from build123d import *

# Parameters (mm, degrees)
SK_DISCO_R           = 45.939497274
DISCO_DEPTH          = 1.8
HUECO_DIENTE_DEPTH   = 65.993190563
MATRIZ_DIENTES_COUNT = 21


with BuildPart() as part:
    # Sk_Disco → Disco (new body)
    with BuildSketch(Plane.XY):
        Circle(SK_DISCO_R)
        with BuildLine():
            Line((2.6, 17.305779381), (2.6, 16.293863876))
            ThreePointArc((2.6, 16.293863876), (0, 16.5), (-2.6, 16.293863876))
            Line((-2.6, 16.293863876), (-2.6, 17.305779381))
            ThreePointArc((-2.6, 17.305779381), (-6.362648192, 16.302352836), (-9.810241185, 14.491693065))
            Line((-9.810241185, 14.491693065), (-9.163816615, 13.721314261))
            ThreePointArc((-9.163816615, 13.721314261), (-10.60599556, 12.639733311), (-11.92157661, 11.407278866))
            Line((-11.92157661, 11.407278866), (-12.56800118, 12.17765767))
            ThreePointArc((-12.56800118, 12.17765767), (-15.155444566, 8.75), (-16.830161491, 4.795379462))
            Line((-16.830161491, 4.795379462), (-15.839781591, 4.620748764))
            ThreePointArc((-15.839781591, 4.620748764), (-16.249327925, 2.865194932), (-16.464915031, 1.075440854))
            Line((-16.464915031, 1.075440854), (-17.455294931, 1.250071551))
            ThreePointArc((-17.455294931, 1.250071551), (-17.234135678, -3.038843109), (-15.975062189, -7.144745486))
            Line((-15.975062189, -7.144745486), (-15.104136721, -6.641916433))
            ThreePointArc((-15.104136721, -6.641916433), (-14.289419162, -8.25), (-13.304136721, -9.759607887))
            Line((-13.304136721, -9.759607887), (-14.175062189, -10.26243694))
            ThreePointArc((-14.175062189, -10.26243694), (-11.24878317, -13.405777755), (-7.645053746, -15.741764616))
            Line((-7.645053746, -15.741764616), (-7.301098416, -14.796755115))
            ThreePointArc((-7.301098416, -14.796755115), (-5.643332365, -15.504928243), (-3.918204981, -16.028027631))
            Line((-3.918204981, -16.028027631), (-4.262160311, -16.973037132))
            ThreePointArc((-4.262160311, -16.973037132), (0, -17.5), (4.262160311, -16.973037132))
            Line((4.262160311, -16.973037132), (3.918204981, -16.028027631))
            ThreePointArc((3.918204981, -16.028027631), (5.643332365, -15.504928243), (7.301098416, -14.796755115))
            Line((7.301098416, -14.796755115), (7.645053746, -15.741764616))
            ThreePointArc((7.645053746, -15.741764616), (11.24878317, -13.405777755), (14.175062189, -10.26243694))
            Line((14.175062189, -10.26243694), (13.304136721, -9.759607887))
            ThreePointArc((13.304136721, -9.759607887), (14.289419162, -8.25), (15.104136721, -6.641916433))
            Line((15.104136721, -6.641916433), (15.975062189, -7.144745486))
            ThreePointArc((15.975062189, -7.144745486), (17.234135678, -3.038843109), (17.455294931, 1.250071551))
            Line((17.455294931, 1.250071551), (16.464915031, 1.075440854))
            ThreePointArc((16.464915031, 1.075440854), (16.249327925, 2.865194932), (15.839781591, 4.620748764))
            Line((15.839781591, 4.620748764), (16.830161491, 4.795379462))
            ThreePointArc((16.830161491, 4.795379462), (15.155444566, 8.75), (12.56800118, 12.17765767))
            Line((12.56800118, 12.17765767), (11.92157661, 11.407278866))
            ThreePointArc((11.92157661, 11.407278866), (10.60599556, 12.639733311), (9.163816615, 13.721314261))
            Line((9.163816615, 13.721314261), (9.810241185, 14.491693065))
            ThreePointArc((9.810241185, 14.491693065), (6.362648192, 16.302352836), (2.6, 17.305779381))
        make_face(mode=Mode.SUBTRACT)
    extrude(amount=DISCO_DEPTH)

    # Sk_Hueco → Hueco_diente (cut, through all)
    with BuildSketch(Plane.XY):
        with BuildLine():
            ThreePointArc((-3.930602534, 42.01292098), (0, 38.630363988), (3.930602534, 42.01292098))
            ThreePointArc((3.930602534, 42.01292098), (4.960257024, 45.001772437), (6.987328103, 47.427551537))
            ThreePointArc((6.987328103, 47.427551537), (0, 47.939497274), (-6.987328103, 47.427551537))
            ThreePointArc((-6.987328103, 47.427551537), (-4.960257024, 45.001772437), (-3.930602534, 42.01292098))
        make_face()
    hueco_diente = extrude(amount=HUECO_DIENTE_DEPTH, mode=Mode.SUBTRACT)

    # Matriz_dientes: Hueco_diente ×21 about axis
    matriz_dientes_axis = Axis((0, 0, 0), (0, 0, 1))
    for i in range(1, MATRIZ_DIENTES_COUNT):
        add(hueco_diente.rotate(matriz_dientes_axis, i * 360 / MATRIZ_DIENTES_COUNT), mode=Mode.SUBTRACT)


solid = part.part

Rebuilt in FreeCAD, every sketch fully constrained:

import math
import FreeCAD as App
import Part
import Sketcher
from FreeCAD import Vector
Q = App.Units.Quantity

doc = App.newDocument("Part")
body = doc.addObject("PartDesign::Body", "Body")

# Sketch on XY plane
sketch1 = doc.addObject("Sketcher::SketchObject", "Sketch")
body.addObject(sketch1)
sketch1.AttachmentSupport = (doc.XY_Plane, [""])
sketch1.MapMode = "FlatFace"
sketch1.addGeometry([
    Part.Circle(Vector(0, 0, 0), Vector(0, 0, 1), 45.939497),  # 0
    Part.LineSegment(Vector(2.6, 16.293864, 0), Vector(2.6, 17.305779, 0)),  # 1
    Part.ArcOfCircle(Part.Circle(Vector(0, 0, 0), Vector(0, 0, 1), 17.5), math.radians(55.903721), math.radians(81.455852)),  # 2
    Part.LineSegment(Vector(9.810241, 14.491693, 0), Vector(9.163817, 13.721314, 0)),  # 3
    Part.ArcOfCircle(Part.Circle(Vector(0, 0, 0), Vector(0, 0, 1), 16.5), math.radians(43.737087), math.radians(56.262913)),  # 4
    Part.LineSegment(Vector(11.921577, 11.407279, 0), Vector(12.568001, 12.177658, 0)),  # 5
    Part.ArcOfCircle(Part.Circle(Vector(0, 0, 0), Vector(0, 0, 1), 17.5), math.radians(15.903721), math.radians(44.096279)),  # 6
    Part.LineSegment(Vector(16.830161, 4.795379, 0), Vector(15.839782, 4.620749, 0)),  # 7
    Part.ArcOfCircle(Part.Circle(Vector(0, 0, 0), Vector(0, 0, 1), 16.5), math.radians(3.737087), math.radians(16.262913)),  # 8
    Part.LineSegment(Vector(16.464915, 1.075441, 0), Vector(17.455295, 1.250072, 0)),  # 9
    Part.ArcOfCircle(Part.Circle(Vector(0, 0, 0), Vector(0, 0, 1), 17.5), math.radians(-24.096279), math.radians(4.096279)),  # 10
    Part.LineSegment(Vector(15.975062, -7.144745, 0), Vector(15.104137, -6.641916, 0)),  # 11
    Part.ArcOfCircle(Part.Circle(Vector(0, 0, 0), Vector(0, 0, 1), 16.5), math.radians(-36.262913), math.radians(-23.737087)),  # 12
    Part.LineSegment(Vector(13.304137, -9.759608, 0), Vector(14.175062, -10.262437, 0)),  # 13
    Part.ArcOfCircle(Part.Circle(Vector(0, 0, 0), Vector(0, 0, 1), 17.5), math.radians(-64.096279), math.radians(-35.903721)),  # 14
    Part.LineSegment(Vector(7.645054, -15.741765, 0), Vector(7.301098, -14.796755, 0)),  # 15
    Part.ArcOfCircle(Part.Circle(Vector(0, 0, 0), Vector(0, 0, 1), 16.5), math.radians(-76.262913), math.radians(-63.737087)),  # 16
    Part.LineSegment(Vector(3.918205, -16.028028, 0), Vector(4.26216, -16.973037, 0)),  # 17
    Part.ArcOfCircle(Part.Circle(Vector(0, 0, 0), Vector(0, 0, 1), 17.5), math.radians(-104.096279), math.radians(-75.903721)),  # 18
    Part.LineSegment(Vector(-4.26216, -16.973037, 0), Vector(-3.918205, -16.028028, 0)),  # 19
    Part.ArcOfCircle(Part.Circle(Vector(0, 0, 0), Vector(0, 0, 1), 16.5), math.radians(-116.262913), math.radians(-103.737087)),  # 20
    Part.LineSegment(Vector(-7.301098, -14.796755, 0), Vector(-7.645054, -15.741765, 0)),  # 21
    Part.ArcOfCircle(Part.Circle(Vector(0, 0, 0), Vector(0, 0, 1), 17.5), math.radians(-144.096279), math.radians(-115.903721)),  # 22
    Part.LineSegment(Vector(-14.175062, -10.262437, 0), Vector(-13.304137, -9.759608, 0)),  # 23
    Part.ArcOfCircle(Part.Circle(Vector(0, 0, 0), Vector(0, 0, 1), 16.5), math.radians(-156.262913), math.radians(-143.737087)),  # 24
    Part.LineSegment(Vector(-15.104137, -6.641916, 0), Vector(-15.975062, -7.144745, 0)),  # 25
    Part.ArcOfCircle(Part.Circle(Vector(0, 0, 0), Vector(0, 0, 1), 17.5), math.radians(175.903721), math.radians(204.096279)),  # 26
    Part.LineSegment(Vector(-17.455295, 1.250072, 0), Vector(-16.464915, 1.075441, 0)),  # 27
    Part.ArcOfCircle(Part.Circle(Vector(0, 0, 0), Vector(0, 0, 1), 16.5), math.radians(163.737087), math.radians(176.262913)),  # 28
    Part.LineSegment(Vector(-15.839782, 4.620749, 0), Vector(-16.830161, 4.795379, 0)),  # 29
    Part.ArcOfCircle(Part.Circle(Vector(0, 0, 0), Vector(0, 0, 1), 17.5), math.radians(135.903721), math.radians(164.096279)),  # 30
    Part.LineSegment(Vector(-12.568001, 12.177658, 0), Vector(-11.921577, 11.407279, 0)),  # 31
    Part.ArcOfCircle(Part.Circle(Vector(0, 0, 0), Vector(0, 0, 1), 16.5), math.radians(123.737087), math.radians(136.262913)),  # 32
    Part.LineSegment(Vector(-9.163817, 13.721314, 0), Vector(-9.810241, 14.491693, 0)),  # 33
    Part.ArcOfCircle(Part.Circle(Vector(0, 0, 0), Vector(0, 0, 1), 17.5), math.radians(98.544148), math.radians(124.096279)),  # 34
    Part.LineSegment(Vector(-2.6, 17.305779, 0), Vector(-2.6, 16.293864, 0)),  # 35
    Part.ArcOfCircle(Part.Circle(Vector(0, 0, 0), Vector(0, 0, 1), 16.5), math.radians(80.933788), math.radians(99.066212)),  # 36
], False)
sketch1.addConstraint([
    Sketcher.Constraint("Coincident", 1, 2, 2, 2),
    Sketcher.Constraint("Coincident", 2, 1, 3, 1),
    Sketcher.Constraint("Coincident", 3, 2, 4, 2),
    Sketcher.Constraint("Coincident", 4, 1, 5, 1),
    Sketcher.Constraint("Coincident", 5, 2, 6, 2),
    Sketcher.Constraint("Coincident", 6, 1, 7, 1),
    Sketcher.Constraint("Coincident", 7, 2, 8, 2),
    Sketcher.Constraint("Coincident", 8, 1, 9, 1),
    Sketcher.Constraint("Coincident", 9, 2, 10, 2),
    Sketcher.Constraint("Coincident", 10, 1, 11, 1),
    Sketcher.Constraint("Coincident", 11, 2, 12, 2),
    Sketcher.Constraint("Coincident", 12, 1, 13, 1),
    Sketcher.Constraint("Coincident", 13, 2, 14, 2),
    Sketcher.Constraint("Coincident", 14, 1, 15, 1),
    Sketcher.Constraint("Coincident", 15, 2, 16, 2),
    Sketcher.Constraint("Coincident", 16, 1, 17, 1),
    Sketcher.Constraint("Coincident", 17, 2, 18, 2),
    Sketcher.Constraint("Coincident", 18, 1, 19, 1),
    Sketcher.Constraint("Coincident", 19, 2, 20, 2),
    Sketcher.Constraint("Coincident", 20, 1, 21, 1),
    Sketcher.Constraint("Coincident", 21, 2, 22, 2),
    Sketcher.Constraint("Coincident", 22, 1, 23, 1),
    Sketcher.Constraint("Coincident", 23, 2, 24, 2),
    Sketcher.Constraint("Coincident", 24, 1, 25, 1),
    Sketcher.Constraint("Coincident", 25, 2, 26, 2),
    Sketcher.Constraint("Coincident", 26, 1, 27, 1),
    Sketcher.Constraint("Coincident", 27, 2, 28, 2),
    Sketcher.Constraint("Coincident", 28, 1, 29, 1),
    Sketcher.Constraint("Coincident", 29, 2, 30, 2),
    Sketcher.Constraint("Coincident", 30, 1, 31, 1),
    Sketcher.Constraint("Coincident", 31, 2, 32, 2),
    Sketcher.Constraint("Coincident", 32, 1, 33, 1),
    Sketcher.Constraint("Coincident", 33, 2, 34, 2),
    Sketcher.Constraint("Coincident", 34, 1, 35, 1),
    Sketcher.Constraint("Coincident", 35, 2, 36, 2),
    Sketcher.Constraint("Coincident", 36, 1, 1, 1),
    Sketcher.Constraint("Vertical", 1),
    Sketcher.Constraint("Vertical", 35),
    Sketcher.Constraint("Coincident", 0, 3, -1, 1),
    Sketcher.Constraint("Coincident", 2, 3, -1, 1),
    Sketcher.Constraint("Coincident", 4, 3, -1, 1),
    Sketcher.Constraint("Coincident", 6, 3, -1, 1),
    Sketcher.Constraint("Coincident", 8, 3, -1, 1),
    Sketcher.Constraint("Coincident", 10, 3, -1, 1),
    Sketcher.Constraint("Coincident", 12, 3, -1, 1),
    Sketcher.Constraint("Coincident", 14, 3, -1, 1),
    Sketcher.Constraint("Coincident", 16, 3, -1, 1),
    Sketcher.Constraint("Coincident", 18, 3, -1, 1),
    Sketcher.Constraint("Coincident", 20, 3, -1, 1),
    Sketcher.Constraint("Coincident", 22, 3, -1, 1),
    Sketcher.Constraint("Coincident", 24, 3, -1, 1),
    Sketcher.Constraint("Coincident", 26, 3, -1, 1),
    Sketcher.Constraint("Coincident", 28, 3, -1, 1),
    Sketcher.Constraint("Coincident", 30, 3, -1, 1),
    Sketcher.Constraint("Coincident", 32, 3, -1, 1),
    Sketcher.Constraint("Coincident", 34, 3, -1, 1),
    Sketcher.Constraint("Coincident", 36, 3, -1, 1),
    Sketcher.Constraint("Equal", 2, 6),
    Sketcher.Constraint("Equal", 4, 8),
    Sketcher.Constraint("Equal", 6, 10),
    Sketcher.Constraint("Equal", 8, 12),
    Sketcher.Constraint("Equal", 10, 14),
    Sketcher.Constraint("Equal", 12, 16),
    Sketcher.Constraint("Equal", 14, 18),
    Sketcher.Constraint("Equal", 16, 20),
    Sketcher.Constraint("Equal", 18, 22),
    Sketcher.Constraint("Equal", 20, 24),
    Sketcher.Constraint("Equal", 22, 26),
    Sketcher.Constraint("Equal", 24, 28),
    Sketcher.Constraint("Equal", 26, 30),
    Sketcher.Constraint("Equal", 28, 32),
    Sketcher.Constraint("Equal", 30, 34),
    Sketcher.Constraint("Equal", 32, 36),
    Sketcher.Constraint("Parallel", 3, 5),
    Sketcher.Constraint("Parallel", 7, 9),
    Sketcher.Constraint("Parallel", 11, 13),
    Sketcher.Constraint("Parallel", 15, 17),
    Sketcher.Constraint("Parallel", 19, 21),
    Sketcher.Constraint("Parallel", 23, 25),
    Sketcher.Constraint("Parallel", 27, 29),
    Sketcher.Constraint("Parallel", 31, 33),
    Sketcher.Constraint("Horizontal", 17, 2, 18, 1),
    Sketcher.Constraint("Horizontal", 16, 1, 19, 2),
    Sketcher.Constraint("Horizontal", 15, 2, 20, 1),
    Sketcher.Constraint("Horizontal", 13, 2, 22, 1),
    Sketcher.Constraint("Horizontal", 12, 1, 23, 2),
    Sketcher.Constraint("Horizontal", 11, 2, 24, 1),
    Sketcher.Constraint("Horizontal", 9, 2, 26, 1),
    Sketcher.Constraint("Horizontal", 8, 1, 27, 2),
    Sketcher.Constraint("Horizontal", 7, 2, 28, 1),
    Sketcher.Constraint("Horizontal", 5, 2, 30, 1),
    Sketcher.Constraint("Horizontal", 4, 1, 31, 2),
    Sketcher.Constraint("Horizontal", 3, 2, 32, 1),
    Sketcher.Constraint("Horizontal", 1, 2, 34, 1),
    Sketcher.Constraint("Equal", 3, 5),
    Sketcher.Constraint("Equal", 5, 7),
    Sketcher.Constraint("Equal", 7, 9),
    Sketcher.Constraint("Equal", 9, 11),
    Sketcher.Constraint("Equal", 11, 13),
    Sketcher.Constraint("Equal", 13, 15),
    Sketcher.Constraint("Equal", 15, 17),
    Sketcher.Constraint("Radius", 2, Q("17.5 mm")),
    Sketcher.Constraint("Radius", 4, Q("16.5 mm")),
    Sketcher.Constraint("Angle", 3, Q("-130 deg")),
    Sketcher.Constraint("Angle", 7, Q("-170 deg")),
    Sketcher.Constraint("Angle", 11, Q("150 deg")),
    Sketcher.Constraint("Angle", 15, Q("110 deg")),
    Sketcher.Constraint("DistanceX", -1, 1, 1, 2, Q("2.6 mm")),
    Sketcher.Constraint("DistanceX", 12, 1, 11, 2, Q("1.8 mm")),
    Sketcher.Constraint("Diameter", 0, Q("91.878995 mm")),
])
pad1 = doc.addObject("PartDesign::Pad", "Pad")
body.addObject(pad1)
pad1.Profile = sketch1
pad1.Length = 1.8

# Sketch on XY plane
sketch2 = doc.addObject("Sketcher::SketchObject", "Sketch001")
body.addObject(sketch2)
sketch2.AttachmentSupport = (doc.XY_Plane, [""])
sketch2.MapMode = "FlatFace"
sketch2.addGeometry([
    Part.ArcOfCircle(Part.Circle(Vector(0, 42.605364, 0), Vector(0, 0, 1), 3.975), math.radians(-171.428571), math.radians(-8.571429)),
    Part.ArcOfCircle(Part.Circle(Vector(12.558151, 40.712527, 0), Vector(0, 0, 1), 8.725), math.radians(129.679299), math.radians(171.428571)),
    Part.ArcOfCircle(Part.Circle(Vector(0, 0, 0), Vector(0, 0, 1), 47.939497), math.radians(81.619111), math.radians(98.380889)),
    Part.ArcOfCircle(Part.Circle(Vector(-12.558151, 40.712527, 0), Vector(0, 0, 1), 8.725), math.radians(8.571429), math.radians(50.320701)),
], False)
sketch2.addConstraint([
    Sketcher.Constraint("Tangent", 0, 2, 1, 2),
    Sketcher.Constraint("Coincident", 1, 1, 2, 1),
    Sketcher.Constraint("Coincident", 2, 2, 3, 2),
    Sketcher.Constraint("Tangent", 3, 1, 0, 1),
    Sketcher.Constraint("Coincident", 2, 3, -1, 1),
    Sketcher.Constraint("Equal", 1, 3),
    Sketcher.Constraint("Symmetric", 1, 3, 3, 3, -2),
    Sketcher.Constraint("Radius", 0, Q("3.975 mm")),
    Sketcher.Constraint("Radius", 1, Q("8.725 mm")),
    Sketcher.Constraint("Radius", 2, Q("47.939497 mm")),
    Sketcher.Constraint("DistanceX", -1, 1, 1, 3, Q("12.558151 mm")),
    Sketcher.Constraint("DistanceY", -1, 1, 0, 2, Q("42.012921 mm")),
])
pocket1 = doc.addObject("PartDesign::Pocket", "Pocket")
body.addObject(pocket1)
pocket1.Profile = sketch2
pocket1.Type = "ThroughAll"
pocket1.Reversed = True
doc.recompute()

polarpattern = doc.addObject("PartDesign::PolarPattern", "PolarPattern")
body.addObject(polarpattern)
polarpattern.Originals = [pocket1]
polarpattern.Axis = (doc.Z_Axis, [""])
polarpattern.Angle = 360
polarpattern.Occurrences = 21
body.Tip = polarpattern

doc.recompute()
